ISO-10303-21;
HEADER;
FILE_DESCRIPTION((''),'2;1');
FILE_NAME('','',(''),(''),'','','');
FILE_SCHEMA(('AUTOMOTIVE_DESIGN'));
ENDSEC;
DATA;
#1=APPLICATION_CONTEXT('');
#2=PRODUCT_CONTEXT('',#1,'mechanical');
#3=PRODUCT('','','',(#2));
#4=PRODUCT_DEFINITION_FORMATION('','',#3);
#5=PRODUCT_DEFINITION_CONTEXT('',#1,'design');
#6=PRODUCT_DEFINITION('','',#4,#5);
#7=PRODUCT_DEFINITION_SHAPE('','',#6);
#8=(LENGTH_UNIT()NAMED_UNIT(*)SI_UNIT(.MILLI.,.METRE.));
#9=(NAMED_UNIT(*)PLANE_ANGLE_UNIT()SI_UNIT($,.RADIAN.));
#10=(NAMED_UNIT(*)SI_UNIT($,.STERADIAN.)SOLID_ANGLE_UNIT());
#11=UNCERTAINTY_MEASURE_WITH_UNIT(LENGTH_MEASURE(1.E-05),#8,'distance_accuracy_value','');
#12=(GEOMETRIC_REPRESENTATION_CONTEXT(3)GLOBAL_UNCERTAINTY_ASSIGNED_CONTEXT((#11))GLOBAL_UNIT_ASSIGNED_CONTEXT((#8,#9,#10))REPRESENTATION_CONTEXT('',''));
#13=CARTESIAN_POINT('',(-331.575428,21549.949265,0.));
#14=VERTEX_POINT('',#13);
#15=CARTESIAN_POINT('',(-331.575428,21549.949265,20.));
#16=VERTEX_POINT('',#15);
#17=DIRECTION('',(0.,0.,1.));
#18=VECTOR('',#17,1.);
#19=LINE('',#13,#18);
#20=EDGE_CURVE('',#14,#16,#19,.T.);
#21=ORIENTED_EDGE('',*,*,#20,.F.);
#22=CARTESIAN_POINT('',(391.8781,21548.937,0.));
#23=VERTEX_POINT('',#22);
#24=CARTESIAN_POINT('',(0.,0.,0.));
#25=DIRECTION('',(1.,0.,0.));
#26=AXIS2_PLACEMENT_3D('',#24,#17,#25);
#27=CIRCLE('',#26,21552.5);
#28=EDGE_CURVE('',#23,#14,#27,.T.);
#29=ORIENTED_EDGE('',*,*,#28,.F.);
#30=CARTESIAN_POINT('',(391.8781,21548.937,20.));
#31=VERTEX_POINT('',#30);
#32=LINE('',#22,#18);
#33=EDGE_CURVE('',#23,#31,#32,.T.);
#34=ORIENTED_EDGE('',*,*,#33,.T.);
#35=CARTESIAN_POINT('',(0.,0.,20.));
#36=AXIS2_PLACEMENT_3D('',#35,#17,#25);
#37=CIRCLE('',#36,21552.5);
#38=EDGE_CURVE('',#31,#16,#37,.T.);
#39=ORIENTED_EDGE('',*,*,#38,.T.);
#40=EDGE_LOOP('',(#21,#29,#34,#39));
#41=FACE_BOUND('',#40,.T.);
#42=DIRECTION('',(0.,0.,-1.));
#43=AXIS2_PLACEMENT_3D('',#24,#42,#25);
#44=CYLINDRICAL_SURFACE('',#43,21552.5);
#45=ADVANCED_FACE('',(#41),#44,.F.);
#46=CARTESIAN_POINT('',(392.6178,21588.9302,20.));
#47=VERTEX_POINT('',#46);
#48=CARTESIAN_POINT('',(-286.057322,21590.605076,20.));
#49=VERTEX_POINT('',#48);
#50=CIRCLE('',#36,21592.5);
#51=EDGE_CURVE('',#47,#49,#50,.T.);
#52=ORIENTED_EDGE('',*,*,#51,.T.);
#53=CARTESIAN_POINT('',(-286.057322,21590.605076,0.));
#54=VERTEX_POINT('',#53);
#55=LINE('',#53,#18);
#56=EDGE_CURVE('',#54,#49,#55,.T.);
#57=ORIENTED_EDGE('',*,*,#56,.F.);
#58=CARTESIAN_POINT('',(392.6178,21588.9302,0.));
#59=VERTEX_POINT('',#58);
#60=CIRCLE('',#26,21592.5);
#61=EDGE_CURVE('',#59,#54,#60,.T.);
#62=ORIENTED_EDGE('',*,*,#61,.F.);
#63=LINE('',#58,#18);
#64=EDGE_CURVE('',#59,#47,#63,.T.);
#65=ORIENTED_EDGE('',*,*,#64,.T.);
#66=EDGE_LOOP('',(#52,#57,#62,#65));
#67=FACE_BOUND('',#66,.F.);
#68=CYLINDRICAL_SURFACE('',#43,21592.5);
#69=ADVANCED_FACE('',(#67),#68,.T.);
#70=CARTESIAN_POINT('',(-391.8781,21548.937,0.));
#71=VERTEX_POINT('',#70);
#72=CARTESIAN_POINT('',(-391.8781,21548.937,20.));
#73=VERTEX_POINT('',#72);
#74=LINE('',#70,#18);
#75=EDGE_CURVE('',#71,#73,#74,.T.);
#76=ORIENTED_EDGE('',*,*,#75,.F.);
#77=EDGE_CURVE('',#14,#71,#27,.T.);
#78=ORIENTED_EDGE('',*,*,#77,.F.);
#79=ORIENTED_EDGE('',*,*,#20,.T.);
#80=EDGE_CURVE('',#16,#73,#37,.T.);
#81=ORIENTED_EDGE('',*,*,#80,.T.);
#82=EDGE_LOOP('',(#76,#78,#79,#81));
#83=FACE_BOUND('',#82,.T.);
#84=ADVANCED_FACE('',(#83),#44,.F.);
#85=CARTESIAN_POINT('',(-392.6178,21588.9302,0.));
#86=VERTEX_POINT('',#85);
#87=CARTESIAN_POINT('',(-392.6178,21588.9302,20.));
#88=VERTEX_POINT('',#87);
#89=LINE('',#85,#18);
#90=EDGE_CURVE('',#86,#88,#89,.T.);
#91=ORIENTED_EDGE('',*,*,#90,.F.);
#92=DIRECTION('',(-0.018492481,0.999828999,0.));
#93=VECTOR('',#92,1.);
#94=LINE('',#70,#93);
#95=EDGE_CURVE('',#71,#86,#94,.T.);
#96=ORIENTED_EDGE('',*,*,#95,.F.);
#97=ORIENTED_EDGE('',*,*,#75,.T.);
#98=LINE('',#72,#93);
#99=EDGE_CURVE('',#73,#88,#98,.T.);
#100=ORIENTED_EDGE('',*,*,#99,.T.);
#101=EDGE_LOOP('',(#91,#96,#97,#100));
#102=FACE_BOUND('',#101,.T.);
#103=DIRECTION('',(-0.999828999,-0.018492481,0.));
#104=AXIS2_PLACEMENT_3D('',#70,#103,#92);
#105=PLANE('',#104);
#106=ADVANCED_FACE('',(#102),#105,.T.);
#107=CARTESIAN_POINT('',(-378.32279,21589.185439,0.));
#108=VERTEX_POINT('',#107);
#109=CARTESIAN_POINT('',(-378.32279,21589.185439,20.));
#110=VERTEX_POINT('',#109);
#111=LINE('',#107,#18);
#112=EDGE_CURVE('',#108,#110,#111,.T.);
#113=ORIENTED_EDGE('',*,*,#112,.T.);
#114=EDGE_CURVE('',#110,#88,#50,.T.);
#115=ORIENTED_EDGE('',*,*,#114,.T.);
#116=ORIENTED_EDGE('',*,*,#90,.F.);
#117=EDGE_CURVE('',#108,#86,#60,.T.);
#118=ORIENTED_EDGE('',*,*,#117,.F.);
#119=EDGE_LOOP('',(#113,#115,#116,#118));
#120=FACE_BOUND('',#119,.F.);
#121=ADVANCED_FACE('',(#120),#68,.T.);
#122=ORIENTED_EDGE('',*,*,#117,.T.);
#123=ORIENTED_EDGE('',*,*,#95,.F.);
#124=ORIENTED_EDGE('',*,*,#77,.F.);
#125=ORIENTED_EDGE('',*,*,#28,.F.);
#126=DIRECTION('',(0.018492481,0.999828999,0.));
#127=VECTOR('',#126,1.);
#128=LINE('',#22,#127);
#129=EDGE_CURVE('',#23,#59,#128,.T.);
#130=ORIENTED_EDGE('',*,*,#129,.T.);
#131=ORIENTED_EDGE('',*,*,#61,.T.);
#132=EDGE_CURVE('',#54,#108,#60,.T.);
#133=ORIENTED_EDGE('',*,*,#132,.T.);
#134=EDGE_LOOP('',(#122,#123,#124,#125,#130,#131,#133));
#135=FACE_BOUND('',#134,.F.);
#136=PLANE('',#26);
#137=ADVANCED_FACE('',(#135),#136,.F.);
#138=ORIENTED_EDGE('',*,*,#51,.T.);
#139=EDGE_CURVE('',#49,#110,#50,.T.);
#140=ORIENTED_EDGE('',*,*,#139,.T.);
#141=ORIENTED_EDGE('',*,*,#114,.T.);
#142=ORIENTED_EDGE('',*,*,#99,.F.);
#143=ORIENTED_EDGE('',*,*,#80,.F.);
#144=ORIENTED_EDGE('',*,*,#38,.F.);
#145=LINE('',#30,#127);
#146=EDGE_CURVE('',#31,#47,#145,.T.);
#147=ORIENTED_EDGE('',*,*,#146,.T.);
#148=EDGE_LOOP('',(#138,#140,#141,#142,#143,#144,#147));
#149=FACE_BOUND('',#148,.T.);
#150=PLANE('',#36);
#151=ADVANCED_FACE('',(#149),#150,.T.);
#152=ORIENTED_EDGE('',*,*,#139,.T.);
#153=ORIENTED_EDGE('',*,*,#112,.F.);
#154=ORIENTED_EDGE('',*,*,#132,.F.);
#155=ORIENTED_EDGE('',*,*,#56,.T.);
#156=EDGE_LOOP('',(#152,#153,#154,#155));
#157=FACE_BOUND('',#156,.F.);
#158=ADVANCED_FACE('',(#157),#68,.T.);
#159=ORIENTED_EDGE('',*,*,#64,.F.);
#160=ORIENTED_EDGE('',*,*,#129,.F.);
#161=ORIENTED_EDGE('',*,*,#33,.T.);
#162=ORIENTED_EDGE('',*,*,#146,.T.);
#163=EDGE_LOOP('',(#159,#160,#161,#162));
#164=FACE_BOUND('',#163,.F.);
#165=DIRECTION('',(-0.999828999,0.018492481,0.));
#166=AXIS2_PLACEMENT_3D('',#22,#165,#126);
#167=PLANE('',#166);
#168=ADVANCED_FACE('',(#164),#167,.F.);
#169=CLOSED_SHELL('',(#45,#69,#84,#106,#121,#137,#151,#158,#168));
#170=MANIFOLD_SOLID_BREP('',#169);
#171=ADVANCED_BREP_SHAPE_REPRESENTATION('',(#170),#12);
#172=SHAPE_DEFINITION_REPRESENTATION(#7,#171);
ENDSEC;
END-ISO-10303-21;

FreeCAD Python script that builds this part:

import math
import FreeCAD as App
import Part
import Sketcher

V = App.Vector
Q = App.Units.Quantity

doc = App.newDocument("Part")
body = doc.addObject("PartDesign::Body", "Body")

# Sketch on XY plane
sketch1 = body.newObject("Sketcher::SketchObject", "Sketch")
sketch1.AttachmentSupport = (doc.getObject("XY_Plane"), [""])
sketch1.MapMode = "FlatFace"
sketch1.addGeometry(Part.ArcOfCircle(Part.Circle(V(0, 0, 0), V(0, 0, 1), 21552), math.radians(88.96), math.radians(91.04)), False)
sketch1.addGeometry(Part.LineSegment(V(392, 21549, 0), V(393, 21589, 0)), False)
sketch1.addGeometry(Part.ArcOfCircle(Part.Circle(V(0, 0, 0), V(0, 0, 1), 21592), math.radians(88.96), math.radians(91.04)), False)
sketch1.addGeometry(Part.LineSegment(V(-393, 21589, 0), V(-392, 21549, 0)), False)
sketch1.addConstraint(Sketcher.Constraint("Coincident", 0, 1, 1, 1))
sketch1.addConstraint(Sketcher.Constraint("Coincident", 1, 2, 2, 1))
sketch1.addConstraint(Sketcher.Constraint("Coincident", 2, 2, 3, 1))
sketch1.addConstraint(Sketcher.Constraint("Coincident", 3, 2, 0, 2))
sketch1.addConstraint(Sketcher.Constraint("Coincident", 0, 3, -1, 1))
sketch1.addConstraint(Sketcher.Constraint("Coincident", 2, 3, -1, 1))
sketch1.addConstraint(Sketcher.Constraint("Distance", 1, 40.0))
sketch1.addConstraint(Sketcher.Constraint("Radius", 0, 21552.5))
sketch1.addConstraint(Sketcher.Constraint("Angle", 1, Q("88.9404 deg")))
sketch1.addConstraint(Sketcher.Constraint("Angle", 3, Q("-88.9404 deg")))
sketch1.addConstraint(Sketcher.Constraint("DistanceX", 3, 2, -1, 1, 391.878))
sketch1.addConstraint(Sketcher.Constraint("DistanceX", 3, 2, 1, 2, 784.496))
pad1 = body.newObject("PartDesign::Pad", "Pad")
pad1.Profile = sketch1
pad1.Length = 20

doc.recompute()
